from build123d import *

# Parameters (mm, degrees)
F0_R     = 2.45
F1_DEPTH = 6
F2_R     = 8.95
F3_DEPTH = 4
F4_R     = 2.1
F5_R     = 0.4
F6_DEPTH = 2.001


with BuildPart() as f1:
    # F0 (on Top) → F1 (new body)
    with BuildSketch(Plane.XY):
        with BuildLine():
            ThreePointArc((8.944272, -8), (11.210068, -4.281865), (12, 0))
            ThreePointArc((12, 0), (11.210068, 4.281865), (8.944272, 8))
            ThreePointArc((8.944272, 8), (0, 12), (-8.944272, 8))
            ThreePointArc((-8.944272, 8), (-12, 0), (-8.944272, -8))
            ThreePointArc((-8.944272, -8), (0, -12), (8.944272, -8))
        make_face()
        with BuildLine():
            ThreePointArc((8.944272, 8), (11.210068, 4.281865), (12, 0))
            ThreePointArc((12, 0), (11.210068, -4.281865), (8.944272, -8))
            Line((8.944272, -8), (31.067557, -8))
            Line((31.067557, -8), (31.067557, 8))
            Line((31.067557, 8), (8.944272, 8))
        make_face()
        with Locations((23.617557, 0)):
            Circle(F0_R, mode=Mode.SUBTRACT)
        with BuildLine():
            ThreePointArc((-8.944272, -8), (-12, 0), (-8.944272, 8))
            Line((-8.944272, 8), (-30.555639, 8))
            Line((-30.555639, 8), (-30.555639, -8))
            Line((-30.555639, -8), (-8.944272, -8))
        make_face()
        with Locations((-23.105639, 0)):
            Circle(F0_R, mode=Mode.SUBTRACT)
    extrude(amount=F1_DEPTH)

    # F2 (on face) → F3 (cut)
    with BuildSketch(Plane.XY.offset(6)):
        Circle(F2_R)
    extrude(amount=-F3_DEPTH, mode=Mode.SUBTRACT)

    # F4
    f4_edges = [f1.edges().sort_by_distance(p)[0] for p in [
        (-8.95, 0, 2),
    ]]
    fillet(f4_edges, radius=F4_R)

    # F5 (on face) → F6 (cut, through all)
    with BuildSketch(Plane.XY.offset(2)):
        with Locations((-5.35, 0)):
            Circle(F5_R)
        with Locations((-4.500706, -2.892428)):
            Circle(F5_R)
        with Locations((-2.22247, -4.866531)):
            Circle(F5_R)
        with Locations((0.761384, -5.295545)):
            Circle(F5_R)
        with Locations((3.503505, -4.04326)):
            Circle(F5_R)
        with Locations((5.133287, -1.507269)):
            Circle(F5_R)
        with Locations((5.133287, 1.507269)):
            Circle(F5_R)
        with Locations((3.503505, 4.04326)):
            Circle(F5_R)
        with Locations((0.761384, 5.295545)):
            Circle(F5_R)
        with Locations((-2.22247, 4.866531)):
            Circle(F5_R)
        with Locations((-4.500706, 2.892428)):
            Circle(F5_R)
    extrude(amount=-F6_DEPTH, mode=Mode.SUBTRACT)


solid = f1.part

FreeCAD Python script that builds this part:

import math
import FreeCAD as App
import Part
import Sketcher
from FreeCAD import Vector


def edges_at(feature, points):
    """Names of the edges that pass closest to the given points."""
    edges = feature.Shape.Edges
    near = lambda p: min(range(len(edges)), key=lambda i: edges[i].distToShape(Part.Vertex(*p))[0])
    return sorted({f"Edge{near(p) + 1}" for p in points})

doc = App.newDocument("Part")
body = doc.addObject("PartDesign::Body", "Body")

# Sketch on XY plane
sketch1 = body.newObject("Sketcher::SketchObject", "Sketch")
sketch1.AttachmentSupport = (doc.getObject("XY_Plane"), [""])
sketch1.MapMode = "FlatFace"
sketch1.addGeometry(Part.ArcOfCircle(Part.Circle(Vector(0, 0, 0), Vector(0, 0, 1), 12), math.radians(42), math.radians(138)), False)
sketch1.addGeometry(Part.LineSegment(Vector(-8.9, 8, 0), Vector(-30.6, 8, 0)), False)
sketch1.addGeometry(Part.LineSegment(Vector(-30.6, 8, 0), Vector(-30.6, -8, 0)), False)
sketch1.addGeometry(Part.LineSegment(Vector(-30.6, -8, 0), Vector(-8.9, -8, 0)), False)
sketch1.addGeometry(Part.ArcOfCircle(Part.Circle(Vector(0, 0, 0), Vector(0, 0, 1), 12), math.radians(-138), math.radians(-42)), False)
sketch1.addGeometry(Part.LineSegment(Vector(8.9, -8, 0), Vector(31.1, -8, 0)), False)
sketch1.addGeometry(Part.LineSegment(Vector(31.1, -8, 0), Vector(31.1, 8, 0)), False)
sketch1.addGeometry(Part.LineSegment(Vector(31.1, 8, 0), Vector(8.9, 8, 0)), False)
sketch1.addGeometry(Part.Circle(Vector(-23.1, 0, 0), Vector(0, 0, 1), 2.5), False)
sketch1.addGeometry(Part.Circle(Vector(23.6, 0, 0), Vector(0, 0, 1), 2.5), False)
sketch1.addConstraint(Sketcher.Constraint("Coincident", 0, 2, 1, 1))
sketch1.addConstraint(Sketcher.Constraint("Coincident", 1, 2, 2, 1))
sketch1.addConstraint(Sketcher.Constraint("Coincident", 2, 2, 3, 1))
sketch1.addConstraint(Sketcher.Constraint("Coincident", 3, 2, 4, 1))
sketch1.addConstraint(Sketcher.Constraint("Coincident", 4, 2, 5, 1))
sketch1.addConstraint(Sketcher.Constraint("Coincident", 5, 2, 6, 1))
sketch1.addConstraint(Sketcher.Constraint("Coincident", 6, 2, 7, 1))
sketch1.addConstraint(Sketcher.Constraint("Coincident", 7, 2, 0, 1))
sketch1.addConstraint(Sketcher.Constraint("Horizontal", 1))
sketch1.addConstraint(Sketcher.Constraint("Vertical", 2))
sketch1.addConstraint(Sketcher.Constraint("Horizontal", 3))
sketch1.addConstraint(Sketcher.Constraint("Horizontal", 5))
sketch1.addConstraint(Sketcher.Constraint("Vertical", 6))
sketch1.addConstraint(Sketcher.Constraint("Horizontal", 7))
sketch1.addConstraint(Sketcher.Constraint("Coincident", 0, 3, -1, 1))
sketch1.addConstraint(Sketcher.Constraint("Coincident", 4, 3, -1, 1))
sketch1.addConstraint(Sketcher.Constraint("Equal", 0, 4))
sketch1.addConstraint(Sketcher.Constraint("Equal", 8, 9))
sketch1.addConstraint(Sketcher.Constraint("PointOnObject", 8, 3, -1))
sketch1.addConstraint(Sketcher.Constraint("PointOnObject", 9, 3, -1))
sketch1.addConstraint(Sketcher.Constraint("Horizontal", 3, 2, 4, 2))
sketch1.addConstraint(Sketcher.Constraint("Horizontal", 1, 2, 6, 2))
sketch1.addConstraint(Sketcher.Constraint("Vertical", 0, 2, 3, 2))
sketch1.addConstraint(Sketcher.Constraint("Radius", 0, 12.0))
sketch1.addConstraint(Sketcher.Constraint("Diameter", 8, 4.9))
sketch1.addConstraint(Sketcher.Constraint("DistanceY", 2, 2, 2, 1, 16.0))
sketch1.addConstraint(Sketcher.Constraint("DistanceX", 1, 2, 8, 3, 7.45))
sketch1.addConstraint(Sketcher.Constraint("DistanceX", 9, 3, 5, 2, 7.45))
sketch1.addConstraint(Sketcher.Constraint("DistanceX", 1, 2, 1, 1, 21.611367))
sketch1.addConstraint(Sketcher.Constraint("DistanceX", 5, 1, 5, 2, 22.123285))
pad1 = body.newObject("PartDesign::Pad", "Pad")
pad1.Profile = sketch1
pad1.Length = 6

# Sketch on XY plane
sketch2 = body.newObject("Sketcher::SketchObject", "Sketch001")
sketch2.AttachmentSupport = (doc.getObject("XY_Plane"), [""])
sketch2.MapMode = "FlatFace"
sketch2.AttachmentOffset = App.Placement(Vector(0, 0, 6), App.Rotation())
sketch2.addGeometry(Part.Circle(Vector(0, 0, 0), Vector(0, 0, 1), 9), False)
sketch2.addConstraint(Sketcher.Constraint("Coincident", 0, 3, -1, 1))
sketch2.addConstraint(Sketcher.Constraint("Diameter", 0, 17.9))
pocket1 = body.newObject("PartDesign::Pocket", "Pocket")
pocket1.Profile = sketch2
pocket1.Length = 4
doc.recompute()

fillet = body.newObject("PartDesign::Fillet", "Fillet")
fillet.Base = (pocket1, edges_at(pocket1, [(-8.95, 0, 2)]))
fillet.Radius = 2.1

# Sketch on XY plane
sketch3 = body.newObject("Sketcher::SketchObject", "Sketch002")
sketch3.AttachmentSupport = (doc.getObject("XY_Plane"), [""])
sketch3.MapMode = "FlatFace"
sketch3.AttachmentOffset = App.Placement(Vector(0, 0, 2), App.Rotation())
sketch3.addGeometry(Part.Circle(Vector(-5.35, 0, 0), Vector(0, 0, 1), 0.4), False)
sketch3.addGeometry(Part.Circle(Vector(-4.5, -2.89, 0), Vector(0, 0, 1), 0.4), False)
sketch3.addGeometry(Part.Circle(Vector(-2.22, -4.87, 0), Vector(0, 0, 1), 0.4), False)
sketch3.addGeometry(Part.Circle(Vector(0.76, -5.3, 0), Vector(0, 0, 1), 0.4), False)
sketch3.addGeometry(Part.Circle(Vector(3.5, -4.04, 0), Vector(0, 0, 1), 0.4), False)
sketch3.addGeometry(Part.Circle(Vector(5.13, -1.51, 0), Vector(0, 0, 1), 0.4), False)
sketch3.addGeometry(Part.Circle(Vector(5.13, 1.51, 0), Vector(0, 0, 1), 0.4), False)
sketch3.addGeometry(Part.Circle(Vector(3.5, 4.04, 0), Vector(0, 0, 1), 0.4), False)
sketch3.addGeometry(Part.Circle(Vector(0.76, 5.3, 0), Vector(0, 0, 1), 0.4), False)
sketch3.addGeometry(Part.Circle(Vector(-2.22, 4.87, 0), Vector(0, 0, 1), 0.4), False)
sketch3.addGeometry(Part.Circle(Vector(-4.5, 2.89, 0), Vector(0, 0, 1), 0.4), False)
sketch3.addConstraint(Sketcher.Constraint("Equal", 0, 1))
sketch3.addConstraint(Sketcher.Constraint("Equal", 1, 2))
sketch3.addConstraint(Sketcher.Constraint("Equal", 2, 3))
sketch3.addConstraint(Sketcher.Constraint("Equal", 3, 4))
sketch3.addConstraint(Sketcher.Constraint("Equal", 4, 5))
sketch3.addConstraint(Sketcher.Constraint("Equal", 5, 6))
sketch3.addConstraint(Sketcher.Constraint("Equal", 6, 7))
sketch3.addConstraint(Sketcher.Constraint("Equal", 7, 8))
sketch3.addConstraint(Sketcher.Constraint("Equal", 8, 9))
sketch3.addConstraint(Sketcher.Constraint("Equal", 9, 10))
sketch3.addConstraint(Sketcher.Constraint("Symmetric", 5, 3, 6, 3, -1))
sketch3.addConstraint(Sketcher.Constraint("Symmetric", 4, 3, 7, 3, -1))
sketch3.addConstraint(Sketcher.Constraint("Symmetric", 3, 3, 8, 3, -1))
sketch3.addConstraint(Sketcher.Constraint("Symmetric", 2, 3, 9, 3, -1))
sketch3.addConstraint(Sketcher.Constraint("Symmetric", 1, 3, 10, 3, -1))
sketch3.addConstraint(Sketcher.Constraint("PointOnObject", 0, 3, -1))
sketch3.addConstraint(Sketcher.Constraint("Diameter", 0, 0.8))
sketch3.addConstraint(Sketcher.Constraint("DistanceX", 0, 3, -1, 1, 5.35))
sketch3.addConstraint(Sketcher.Constraint("DistanceY", 2, 3, 6, 3, 6.3738))
sketch3.addConstraint(Sketcher.Constraint("DistanceY", 1, 3, -1, 1, 2.892428))
sketch3.addConstraint(Sketcher.Constraint("DistanceX", 2, 3, -1, 1, 2.22247))
sketch3.addConstraint(Sketcher.Constraint("DistanceY", 2, 3, -1, 1, 4.866531))
sketch3.addConstraint(Sketcher.Constraint("DistanceY", 4, 3, -1, 1, 4.04326))
sketch3.addConstraint(Sketcher.Constraint("DistanceX", 1, 3, 3, 3, 5.26209))
sketch3.addConstraint(Sketcher.Constraint("DistanceX", 3, 3, 4, 3, 2.742121))
sketch3.addConstraint(Sketcher.Constraint("DistanceX", 1, 3, -1, 1, 4.500706))
sketch3.addConstraint(Sketcher.Constraint("DistanceY", 3, 3, -1, 1, 5.295545))
sketch3.addConstraint(Sketcher.Constraint("DistanceX", -1, 1, 5, 3, 5.133287))
pocket2 = body.newObject("PartDesign::Pocket", "Pocket001")
pocket2.Profile = sketch3
pocket2.Type = "ThroughAll"

doc.recompute()
